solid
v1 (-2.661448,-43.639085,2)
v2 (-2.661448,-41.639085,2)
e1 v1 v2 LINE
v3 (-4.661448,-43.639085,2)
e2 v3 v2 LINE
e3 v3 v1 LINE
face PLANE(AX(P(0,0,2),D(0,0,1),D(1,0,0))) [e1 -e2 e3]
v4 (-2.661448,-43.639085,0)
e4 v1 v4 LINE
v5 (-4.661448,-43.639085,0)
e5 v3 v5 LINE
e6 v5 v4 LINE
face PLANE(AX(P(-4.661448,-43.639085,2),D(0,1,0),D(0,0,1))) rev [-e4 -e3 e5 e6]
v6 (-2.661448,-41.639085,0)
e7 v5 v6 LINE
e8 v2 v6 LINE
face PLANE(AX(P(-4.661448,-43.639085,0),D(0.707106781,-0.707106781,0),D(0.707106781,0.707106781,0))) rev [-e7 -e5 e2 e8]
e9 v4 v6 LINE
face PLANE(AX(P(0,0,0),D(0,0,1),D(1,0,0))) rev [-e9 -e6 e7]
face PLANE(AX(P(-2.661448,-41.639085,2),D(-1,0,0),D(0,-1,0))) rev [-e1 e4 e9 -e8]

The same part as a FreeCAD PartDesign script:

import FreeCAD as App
import Part
import Sketcher


def add_polygon(sketch, points):
    """Adds a closed chain of lines whose ends are joined by coincident constraints."""
    first, n = sketch.GeometryCount, len(points)
    for a, b in zip(points, points[1:] + points[:1]):
        sketch.addGeometry(Part.LineSegment(App.Vector(*a, 0), App.Vector(*b, 0)), False)
    for i in range(n):
        sketch.addConstraint(Sketcher.Constraint("Coincident", first + i, 2, first + (i + 1) % n, 1))

doc = App.newDocument("Part")
params = doc.addObject("Spreadsheet::Sheet", "Params")
for row, (alias, value) in enumerate([
    ("sketch1_width", "2 mm"),
    ("pad1_length", "2 mm"),
    ("sketch2_width", "2 mm"),
], start=1):
    params.set(f"A{row}", alias)
    params.set(f"B{row}", "=" + value)
    params.setAlias(f"B{row}", alias)

body = doc.addObject("PartDesign::Body", "Body")

sketch1 = body.newObject("Sketcher::SketchObject", "Sketch")
sketch1.AttachmentSupport = (doc.getObject("XY_Plane"), [""])
sketch1.MapMode = "FlatFace"
add_polygon(sketch1, [(-4.7, -41.6), (-4.7, -43.6), (-2.7, -43.6), (-2.7, -41.6)])
sketch1.addConstraint(Sketcher.Constraint("Vertical", 0))
sketch1.addConstraint(Sketcher.Constraint("Horizontal", 1))
sketch1.addConstraint(Sketcher.Constraint("Vertical", 2))
sketch1.addConstraint(Sketcher.Constraint("Horizontal", 3))
sketch1.addConstraint(Sketcher.Constraint("Equal", 3, 0))
sketch1.addConstraint(Sketcher.Constraint("DistanceX", 1, 1, 1, 2, 2.0))
sketch1.addConstraint(Sketcher.Constraint("DistanceX", 0, 2, -1, 1, 4.661448))
sketch1.addConstraint(Sketcher.Constraint("DistanceY", 0, 2, -1, 1, 43.639085))
sketch1.setExpression("Constraints[9]", "Params.sketch1_width")
pad1 = body.newObject("PartDesign::Pad", "Pad")
pad1.Profile = sketch1
pad1.setExpression("Length", "Params.pad1_length")

sketch2 = body.newObject("Sketcher::SketchObject", "Sketch001")
sketch2.AttachmentSupport = (doc.getObject("XY_Plane"), [""])
sketch2.MapMode = "FlatFace"
sketch2.AttachmentOffset = App.Placement(App.Vector(0, 0, 2), App.Rotation())
add_polygon(sketch2, [(-4.7, -43.6), (-2.7, -41.6), (-4.7, -41.6)])
sketch2.addConstraint(Sketcher.Constraint("Horizontal", 1))
sketch2.addConstraint(Sketcher.Constraint("Vertical", 2))
sketch2.addConstraint(Sketcher.Constraint("Equal", 1, 2))
sketch2.addConstraint(Sketcher.Constraint("DistanceX", 1, 2, 1, 1, 2.0))
sketch2.addConstraint(Sketcher.Constraint("DistanceX", 0, 2, -1, 1, 2.661448))
sketch2.addConstraint(Sketcher.Constraint("DistanceY", 0, 2, -1, 1, 41.639085))
sketch2.setExpression("Constraints[6]", "Params.sketch2_width")
pocket1 = body.newObject("PartDesign::Pocket", "Pocket")
pocket1.Profile = sketch2
pocket1.Type = "ThroughAll"

doc.recompute()
